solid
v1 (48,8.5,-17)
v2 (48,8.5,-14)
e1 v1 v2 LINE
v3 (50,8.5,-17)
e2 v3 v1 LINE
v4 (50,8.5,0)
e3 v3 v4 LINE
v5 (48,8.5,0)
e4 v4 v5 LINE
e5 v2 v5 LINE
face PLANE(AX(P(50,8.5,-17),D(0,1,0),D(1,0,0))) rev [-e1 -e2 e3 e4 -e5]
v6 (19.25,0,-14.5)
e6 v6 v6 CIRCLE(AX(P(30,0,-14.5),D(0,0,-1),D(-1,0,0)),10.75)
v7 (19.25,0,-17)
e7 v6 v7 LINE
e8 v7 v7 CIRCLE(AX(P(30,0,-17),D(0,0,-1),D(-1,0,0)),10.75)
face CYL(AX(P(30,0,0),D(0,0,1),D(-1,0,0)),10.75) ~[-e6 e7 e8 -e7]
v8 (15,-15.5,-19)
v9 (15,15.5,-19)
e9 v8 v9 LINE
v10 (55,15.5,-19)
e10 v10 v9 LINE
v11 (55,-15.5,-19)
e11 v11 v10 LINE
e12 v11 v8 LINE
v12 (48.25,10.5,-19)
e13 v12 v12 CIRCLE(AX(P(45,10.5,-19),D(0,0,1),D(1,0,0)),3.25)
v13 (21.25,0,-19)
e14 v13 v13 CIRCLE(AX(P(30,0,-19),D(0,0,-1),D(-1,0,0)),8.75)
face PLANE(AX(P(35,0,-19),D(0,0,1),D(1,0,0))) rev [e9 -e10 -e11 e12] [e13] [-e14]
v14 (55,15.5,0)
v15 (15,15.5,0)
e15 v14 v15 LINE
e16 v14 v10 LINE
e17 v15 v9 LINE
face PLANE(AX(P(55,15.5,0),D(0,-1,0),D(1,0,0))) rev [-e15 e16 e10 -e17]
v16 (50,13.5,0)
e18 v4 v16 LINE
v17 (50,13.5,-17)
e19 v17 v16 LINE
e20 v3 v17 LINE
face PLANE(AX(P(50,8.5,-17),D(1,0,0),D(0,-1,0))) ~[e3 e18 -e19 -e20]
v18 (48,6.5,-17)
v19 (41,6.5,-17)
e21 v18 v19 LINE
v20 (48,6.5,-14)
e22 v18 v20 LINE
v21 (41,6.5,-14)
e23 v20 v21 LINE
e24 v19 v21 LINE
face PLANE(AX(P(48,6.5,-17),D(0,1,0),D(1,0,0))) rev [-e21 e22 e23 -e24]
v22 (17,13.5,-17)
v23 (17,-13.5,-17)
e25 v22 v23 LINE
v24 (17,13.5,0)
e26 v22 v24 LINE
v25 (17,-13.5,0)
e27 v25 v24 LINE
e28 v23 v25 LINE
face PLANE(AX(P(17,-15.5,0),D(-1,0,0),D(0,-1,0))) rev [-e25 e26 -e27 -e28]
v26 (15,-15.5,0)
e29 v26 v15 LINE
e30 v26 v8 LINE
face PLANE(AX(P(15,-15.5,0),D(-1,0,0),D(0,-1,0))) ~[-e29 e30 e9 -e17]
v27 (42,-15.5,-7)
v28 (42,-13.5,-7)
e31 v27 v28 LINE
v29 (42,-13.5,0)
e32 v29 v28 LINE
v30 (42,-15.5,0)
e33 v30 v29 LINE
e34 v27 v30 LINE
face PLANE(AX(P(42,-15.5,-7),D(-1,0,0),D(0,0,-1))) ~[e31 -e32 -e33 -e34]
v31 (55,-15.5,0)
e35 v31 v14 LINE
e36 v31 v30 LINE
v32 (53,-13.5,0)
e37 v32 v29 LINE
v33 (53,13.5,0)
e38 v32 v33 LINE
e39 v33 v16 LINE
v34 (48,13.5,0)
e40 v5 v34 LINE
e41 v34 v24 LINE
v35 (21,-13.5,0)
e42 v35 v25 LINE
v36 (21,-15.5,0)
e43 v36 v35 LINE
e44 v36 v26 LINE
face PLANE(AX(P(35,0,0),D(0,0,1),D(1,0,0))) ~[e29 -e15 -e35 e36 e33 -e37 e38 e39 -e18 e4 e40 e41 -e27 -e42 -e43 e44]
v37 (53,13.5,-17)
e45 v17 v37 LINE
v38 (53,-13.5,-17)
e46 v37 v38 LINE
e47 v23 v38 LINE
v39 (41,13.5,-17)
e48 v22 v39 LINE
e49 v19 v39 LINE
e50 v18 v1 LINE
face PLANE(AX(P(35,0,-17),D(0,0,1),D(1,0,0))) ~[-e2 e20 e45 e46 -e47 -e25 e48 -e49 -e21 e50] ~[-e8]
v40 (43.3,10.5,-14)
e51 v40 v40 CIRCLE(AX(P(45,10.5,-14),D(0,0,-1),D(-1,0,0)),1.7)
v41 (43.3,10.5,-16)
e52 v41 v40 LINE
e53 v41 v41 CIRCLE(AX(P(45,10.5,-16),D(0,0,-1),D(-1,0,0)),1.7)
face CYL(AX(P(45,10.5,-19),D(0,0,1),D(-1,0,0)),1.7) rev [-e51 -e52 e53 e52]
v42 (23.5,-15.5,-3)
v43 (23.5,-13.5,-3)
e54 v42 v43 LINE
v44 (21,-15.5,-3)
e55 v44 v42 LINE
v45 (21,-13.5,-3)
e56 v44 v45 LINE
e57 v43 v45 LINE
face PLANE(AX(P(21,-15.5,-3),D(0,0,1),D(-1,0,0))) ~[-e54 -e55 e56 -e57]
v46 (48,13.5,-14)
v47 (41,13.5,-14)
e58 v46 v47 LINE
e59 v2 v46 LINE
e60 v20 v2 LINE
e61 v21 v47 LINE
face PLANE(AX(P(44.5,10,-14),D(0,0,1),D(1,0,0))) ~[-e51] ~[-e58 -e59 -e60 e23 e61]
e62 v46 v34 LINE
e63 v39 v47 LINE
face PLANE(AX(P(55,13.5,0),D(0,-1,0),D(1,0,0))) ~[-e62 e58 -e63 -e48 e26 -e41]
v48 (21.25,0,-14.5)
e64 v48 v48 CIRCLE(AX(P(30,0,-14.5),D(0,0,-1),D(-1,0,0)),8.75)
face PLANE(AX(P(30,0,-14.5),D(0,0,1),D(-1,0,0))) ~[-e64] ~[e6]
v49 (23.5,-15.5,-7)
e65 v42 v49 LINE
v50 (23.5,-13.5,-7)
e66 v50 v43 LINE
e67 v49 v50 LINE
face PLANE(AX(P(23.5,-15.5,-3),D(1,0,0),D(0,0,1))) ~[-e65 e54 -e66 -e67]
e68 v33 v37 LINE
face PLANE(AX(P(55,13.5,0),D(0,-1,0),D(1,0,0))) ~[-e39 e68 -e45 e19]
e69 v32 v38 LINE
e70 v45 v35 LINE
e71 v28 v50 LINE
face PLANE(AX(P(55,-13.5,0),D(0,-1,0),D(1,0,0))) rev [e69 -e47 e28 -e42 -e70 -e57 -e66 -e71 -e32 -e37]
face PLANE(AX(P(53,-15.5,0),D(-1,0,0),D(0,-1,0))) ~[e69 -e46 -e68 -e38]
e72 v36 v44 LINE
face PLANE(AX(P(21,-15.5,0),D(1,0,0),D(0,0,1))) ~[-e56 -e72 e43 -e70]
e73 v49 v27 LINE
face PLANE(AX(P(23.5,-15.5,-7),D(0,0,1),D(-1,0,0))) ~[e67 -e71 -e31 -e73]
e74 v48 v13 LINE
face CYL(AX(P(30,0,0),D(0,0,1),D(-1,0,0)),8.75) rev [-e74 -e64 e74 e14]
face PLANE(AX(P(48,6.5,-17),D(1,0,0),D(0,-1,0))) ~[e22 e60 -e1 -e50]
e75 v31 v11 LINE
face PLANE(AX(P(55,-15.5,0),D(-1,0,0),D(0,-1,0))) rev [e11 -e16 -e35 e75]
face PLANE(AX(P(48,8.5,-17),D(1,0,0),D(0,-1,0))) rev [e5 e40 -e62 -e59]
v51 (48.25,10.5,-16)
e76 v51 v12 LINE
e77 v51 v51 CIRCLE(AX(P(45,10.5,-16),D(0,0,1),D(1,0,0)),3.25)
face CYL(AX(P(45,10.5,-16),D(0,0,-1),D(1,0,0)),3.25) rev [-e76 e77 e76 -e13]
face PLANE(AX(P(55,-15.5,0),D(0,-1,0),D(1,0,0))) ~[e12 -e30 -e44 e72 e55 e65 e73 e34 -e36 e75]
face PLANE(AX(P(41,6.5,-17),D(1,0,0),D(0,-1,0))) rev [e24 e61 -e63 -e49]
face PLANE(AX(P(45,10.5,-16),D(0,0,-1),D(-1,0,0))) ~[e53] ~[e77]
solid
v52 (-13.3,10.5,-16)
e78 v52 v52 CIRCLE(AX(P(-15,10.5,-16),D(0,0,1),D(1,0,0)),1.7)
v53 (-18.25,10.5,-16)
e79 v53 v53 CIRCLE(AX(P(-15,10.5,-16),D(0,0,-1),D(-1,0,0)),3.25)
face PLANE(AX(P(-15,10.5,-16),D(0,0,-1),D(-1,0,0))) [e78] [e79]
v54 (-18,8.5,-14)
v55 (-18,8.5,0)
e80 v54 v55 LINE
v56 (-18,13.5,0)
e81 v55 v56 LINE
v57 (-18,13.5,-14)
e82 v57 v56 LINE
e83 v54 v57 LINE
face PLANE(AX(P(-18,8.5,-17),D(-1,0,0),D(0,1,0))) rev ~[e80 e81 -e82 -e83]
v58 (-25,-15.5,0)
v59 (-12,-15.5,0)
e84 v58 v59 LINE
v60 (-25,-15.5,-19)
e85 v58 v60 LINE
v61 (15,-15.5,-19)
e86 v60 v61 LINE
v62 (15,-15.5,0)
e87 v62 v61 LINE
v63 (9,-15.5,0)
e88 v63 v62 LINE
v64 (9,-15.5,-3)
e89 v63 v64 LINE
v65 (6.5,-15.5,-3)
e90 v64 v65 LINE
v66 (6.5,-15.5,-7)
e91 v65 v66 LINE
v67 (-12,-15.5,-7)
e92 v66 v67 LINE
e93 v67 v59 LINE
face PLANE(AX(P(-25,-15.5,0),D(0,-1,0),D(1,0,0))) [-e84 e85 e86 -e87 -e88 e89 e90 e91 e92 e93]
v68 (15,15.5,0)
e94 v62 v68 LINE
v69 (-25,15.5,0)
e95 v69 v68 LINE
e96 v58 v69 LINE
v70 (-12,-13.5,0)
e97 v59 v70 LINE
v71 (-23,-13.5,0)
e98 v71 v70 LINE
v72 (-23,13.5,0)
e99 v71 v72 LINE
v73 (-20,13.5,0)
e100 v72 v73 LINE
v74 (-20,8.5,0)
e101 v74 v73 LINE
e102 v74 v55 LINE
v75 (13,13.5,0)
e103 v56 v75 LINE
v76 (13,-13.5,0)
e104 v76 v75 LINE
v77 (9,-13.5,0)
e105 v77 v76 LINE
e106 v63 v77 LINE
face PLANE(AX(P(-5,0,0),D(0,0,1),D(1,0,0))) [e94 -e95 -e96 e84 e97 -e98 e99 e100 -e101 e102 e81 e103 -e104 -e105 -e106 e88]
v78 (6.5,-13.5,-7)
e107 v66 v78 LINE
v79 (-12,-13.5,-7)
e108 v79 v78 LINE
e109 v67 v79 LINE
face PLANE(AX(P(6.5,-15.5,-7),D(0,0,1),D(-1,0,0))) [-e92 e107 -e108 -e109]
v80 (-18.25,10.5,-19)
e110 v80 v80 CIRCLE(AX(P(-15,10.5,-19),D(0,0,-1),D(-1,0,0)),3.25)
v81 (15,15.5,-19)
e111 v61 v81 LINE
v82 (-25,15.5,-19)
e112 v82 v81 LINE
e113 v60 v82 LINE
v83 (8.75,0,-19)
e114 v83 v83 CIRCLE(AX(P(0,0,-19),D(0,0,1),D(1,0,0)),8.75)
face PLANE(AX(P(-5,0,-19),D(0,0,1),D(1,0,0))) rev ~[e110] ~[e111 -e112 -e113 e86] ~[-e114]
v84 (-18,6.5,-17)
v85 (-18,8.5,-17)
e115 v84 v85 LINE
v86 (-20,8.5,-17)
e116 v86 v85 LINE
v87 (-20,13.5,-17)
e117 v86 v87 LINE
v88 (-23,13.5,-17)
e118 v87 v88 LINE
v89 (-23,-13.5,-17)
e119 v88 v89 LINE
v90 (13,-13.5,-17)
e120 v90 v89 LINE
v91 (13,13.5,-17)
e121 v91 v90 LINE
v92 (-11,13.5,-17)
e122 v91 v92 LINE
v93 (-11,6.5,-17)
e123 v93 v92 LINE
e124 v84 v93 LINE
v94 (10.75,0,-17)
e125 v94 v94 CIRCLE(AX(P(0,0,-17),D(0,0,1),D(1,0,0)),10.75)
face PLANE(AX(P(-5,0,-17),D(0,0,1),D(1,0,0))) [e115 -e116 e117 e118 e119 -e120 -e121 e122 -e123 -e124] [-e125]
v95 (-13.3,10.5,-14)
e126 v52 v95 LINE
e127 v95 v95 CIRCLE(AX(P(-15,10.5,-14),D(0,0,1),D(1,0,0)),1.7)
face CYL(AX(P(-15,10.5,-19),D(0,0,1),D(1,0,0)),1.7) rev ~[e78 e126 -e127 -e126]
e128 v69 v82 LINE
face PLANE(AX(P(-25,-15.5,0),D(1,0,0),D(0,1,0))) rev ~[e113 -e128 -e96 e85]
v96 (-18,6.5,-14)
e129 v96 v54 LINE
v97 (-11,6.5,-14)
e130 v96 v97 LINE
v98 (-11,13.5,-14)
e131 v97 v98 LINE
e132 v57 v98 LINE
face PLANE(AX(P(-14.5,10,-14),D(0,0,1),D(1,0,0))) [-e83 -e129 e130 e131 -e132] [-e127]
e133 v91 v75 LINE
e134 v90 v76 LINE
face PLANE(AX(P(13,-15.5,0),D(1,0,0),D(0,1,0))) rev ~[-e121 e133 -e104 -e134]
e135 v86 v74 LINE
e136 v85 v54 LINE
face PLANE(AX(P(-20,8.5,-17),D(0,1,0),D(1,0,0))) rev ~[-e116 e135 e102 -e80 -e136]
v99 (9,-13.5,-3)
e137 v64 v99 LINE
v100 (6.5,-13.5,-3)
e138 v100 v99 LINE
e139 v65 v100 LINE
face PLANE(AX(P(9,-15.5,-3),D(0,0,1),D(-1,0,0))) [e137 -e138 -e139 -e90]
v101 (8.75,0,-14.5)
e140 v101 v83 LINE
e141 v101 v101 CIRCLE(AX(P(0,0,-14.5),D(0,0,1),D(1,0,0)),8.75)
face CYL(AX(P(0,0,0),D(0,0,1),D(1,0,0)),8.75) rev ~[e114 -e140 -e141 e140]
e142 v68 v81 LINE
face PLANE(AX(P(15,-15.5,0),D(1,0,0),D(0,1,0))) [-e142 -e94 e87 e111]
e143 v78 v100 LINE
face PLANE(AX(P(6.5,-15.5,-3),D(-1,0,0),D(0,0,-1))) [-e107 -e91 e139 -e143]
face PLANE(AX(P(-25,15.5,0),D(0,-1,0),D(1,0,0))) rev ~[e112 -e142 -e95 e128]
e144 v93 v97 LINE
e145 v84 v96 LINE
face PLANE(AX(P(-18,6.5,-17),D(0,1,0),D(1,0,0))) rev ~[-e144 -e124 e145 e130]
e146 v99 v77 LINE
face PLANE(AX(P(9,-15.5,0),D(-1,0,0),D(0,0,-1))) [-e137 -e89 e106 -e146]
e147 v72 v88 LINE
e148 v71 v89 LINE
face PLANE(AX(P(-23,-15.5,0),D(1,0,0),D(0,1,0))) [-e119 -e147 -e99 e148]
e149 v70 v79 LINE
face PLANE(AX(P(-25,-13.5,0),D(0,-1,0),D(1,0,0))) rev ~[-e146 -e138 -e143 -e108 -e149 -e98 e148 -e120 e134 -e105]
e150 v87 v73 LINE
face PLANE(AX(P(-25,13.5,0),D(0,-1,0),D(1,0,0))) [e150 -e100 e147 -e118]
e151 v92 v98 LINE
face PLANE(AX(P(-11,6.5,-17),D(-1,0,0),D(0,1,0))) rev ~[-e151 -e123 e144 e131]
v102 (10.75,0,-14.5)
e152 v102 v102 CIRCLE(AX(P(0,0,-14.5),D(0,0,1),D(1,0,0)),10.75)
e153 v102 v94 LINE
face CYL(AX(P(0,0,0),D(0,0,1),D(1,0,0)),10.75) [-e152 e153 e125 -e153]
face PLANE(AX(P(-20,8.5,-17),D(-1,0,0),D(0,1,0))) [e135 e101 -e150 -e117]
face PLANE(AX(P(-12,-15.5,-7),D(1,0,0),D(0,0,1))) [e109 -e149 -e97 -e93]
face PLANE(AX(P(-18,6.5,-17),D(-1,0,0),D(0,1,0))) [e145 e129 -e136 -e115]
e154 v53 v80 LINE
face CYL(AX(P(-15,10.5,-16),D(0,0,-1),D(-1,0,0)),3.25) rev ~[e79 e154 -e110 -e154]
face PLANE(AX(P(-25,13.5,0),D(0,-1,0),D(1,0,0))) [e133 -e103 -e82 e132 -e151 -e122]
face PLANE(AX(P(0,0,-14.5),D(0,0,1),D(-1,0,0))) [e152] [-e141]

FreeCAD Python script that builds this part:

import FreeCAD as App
import Part
import Sketcher

V = App.Vector
Q = App.Units.Quantity


def faces_at(feature, points):
    """Names of the faces that lie closest to the given points."""
    faces = feature.Shape.Faces
    near = lambda p: min(range(len(faces)), key=lambda i: faces[i].distToShape(Part.Vertex(*p))[0])
    return sorted({f"Face{near(p) + 1}" for p in points})


def add_polygon(sketch, points):
    """Adds a closed chain of lines whose ends are joined by coincident constraints."""
    first, n = sketch.GeometryCount, len(points)
    for a, b in zip(points, points[1:] + points[:1]):
        sketch.addGeometry(Part.LineSegment(App.Vector(*a, 0), App.Vector(*b, 0)), False)
    for i in range(n):
        sketch.addConstraint(Sketcher.Constraint("Coincident", first + i, 2, first + (i + 1) % n, 1))

doc = App.newDocument("Part")
body = doc.addObject("PartDesign::Body", "Body")

# Sketch on XY plane
sketch1 = doc.addObject("Sketcher::SketchObject", "Sketch")
body.addObject(sketch1)
sketch1.AttachmentSupport = (doc.XY_Plane, [""])
sketch1.MapMode = "FlatFace"
add_polygon(sketch1, [(-25, 16), (-25, -16), (15, -16), (15, 16)])  # lines 0-3
sketch1.addGeometry(Part.Circle(V(0, 0, 0), V(0, 0, 1), 9), False)  # 4
sketch1.addConstraint([
    Sketcher.Constraint("Vertical", 0),
    Sketcher.Constraint("Horizontal", 1),
    Sketcher.Constraint("Vertical", 2),
    Sketcher.Constraint("Horizontal", 3),
    Sketcher.Constraint("Coincident", 4, 3, -1, 1),
    Sketcher.Constraint("Diameter", 4, Q("17.5 mm")),
    Sketcher.Constraint("DistanceX", 1, 1, 1, 2, Q("40 mm")),
    Sketcher.Constraint("DistanceY", 0, 2, 0, 1, Q("31 mm")),
    Sketcher.Constraint("DistanceX", 0, 2, -1, 1, Q("25 mm")),
    Sketcher.Constraint("DistanceY", 0, 2, -1, 1, Q("15.5 mm")),
])
pad1 = doc.addObject("PartDesign::Pad", "Pad")
body.addObject(pad1)
pad1.Profile = sketch1
pad1.Length = 19
pad1.Reversed = True
doc.recompute()

thickness = doc.addObject("PartDesign::Thickness", "Thickness")
body.addObject(thickness)
thickness.Base = (pad1, faces_at(pad1, [(-13, -6.2, 0)]))
thickness.Value = 2
thickness.Reversed = True
thickness.Join = "Intersection"

# Sketch on XY plane
sketch2 = doc.addObject("Sketcher::SketchObject", "Sketch001")
body.addObject(sketch2)
sketch2.AttachmentSupport = (doc.XY_Plane, [""])
sketch2.MapMode = "FlatFace"
sketch2.addGeometry([
    Part.Circle(V(0, 0, 0), V(0, 0, 1), 11),
    Part.Circle(V(0, 0, 0), V(0, 0, 1), 9),
], False)
sketch2.addConstraint([
    Sketcher.Constraint("Coincident", 0, 3, -1, 1),
    Sketcher.Constraint("Coincident", 1, 3, -1, 1),
    Sketcher.Constraint("Diameter", 0, Q("21.5 mm")),
    Sketcher.Constraint("Diameter", 1, Q("17.5 mm")),
])
pocket1 = doc.addObject("PartDesign::Pocket", "Pocket")
body.addObject(pocket1)
pocket1.Profile = sketch2
pocket1.Length = 14.5

# Sketch on XY plane
sketch3 = doc.addObject("Sketcher::SketchObject", "Sketch002")
body.addObject(sketch3)
sketch3.AttachmentSupport = (doc.XY_Plane, [""])
sketch3.MapMode = "FlatFace"
sketch3.AttachmentOffset = App.Placement(V(0, 0, -17), App.Rotation())
add_polygon(sketch3, [(-20, 13.5), (-20, 8.5), (-18, 8.5), (-18, 13.5)])  # lines 0-3
sketch3.addConstraint([
    Sketcher.Constraint("Vertical", 0),
    Sketcher.Constraint("Horizontal", 1),
    Sketcher.Constraint("Vertical", 2),
    Sketcher.Constraint("Horizontal", 3),
    Sketcher.Constraint("DistanceX", 1, 1, 1, 2, Q("2 mm")),
    Sketcher.Constraint("DistanceY", 0, 2, 0, 1, Q("5 mm")),
    Sketcher.Constraint("DistanceX", 0, 2, -1, 1, Q("20 mm")),
    Sketcher.Constraint("DistanceY", -1, 1, 0, 2, Q("8.5 mm")),
])
pad2 = doc.addObject("PartDesign::Pad", "Pad001")
body.addObject(pad2)
pad2.Profile = sketch3
pad2.Length = 17

# Sketch on XY plane
sketch4 = doc.addObject("Sketcher::SketchObject", "Sketch003")
body.addObject(sketch4)
sketch4.AttachmentSupport = (doc.XY_Plane, [""])
sketch4.MapMode = "FlatFace"
sketch4.AttachmentOffset = App.Placement(V(0, 0, -17), App.Rotation())
add_polygon(sketch4, [(-18, 14), (-18, 6), (-11, 6), (-11, 14)])  # lines 0-3
sketch4.addConstraint([
    Sketcher.Constraint("Vertical", 0),
    Sketcher.Constraint("Horizontal", 1),
    Sketcher.Constraint("Vertical", 2),
    Sketcher.Constraint("Horizontal", 3),
    Sketcher.Constraint("Equal", 3, 0),
    Sketcher.Constraint("DistanceX", 1, 1, 1, 2, Q("7 mm")),
    Sketcher.Constraint("DistanceX", 0, 2, -1, 1, Q("18 mm")),
    Sketcher.Constraint("DistanceY", -1, 1, 0, 2, Q("6.5 mm")),
])
pad3 = doc.addObject("PartDesign::Pad", "Pad002")
body.addObject(pad3)
pad3.Profile = sketch4
pad3.Length = 3

# Sketch on XY plane
sketch5 = doc.addObject("Sketcher::SketchObject", "Sketch004")
body.addObject(sketch5)
sketch5.AttachmentSupport = (doc.XY_Plane, [""])
sketch5.MapMode = "FlatFace"
sketch5.AttachmentOffset = App.Placement(V(0, 0, -19), App.Rotation())
sketch5.addGeometry(Part.Circle(V(-15, 10.5, 0), V(0, 0, 1), 1.7), False)
sketch5.addConstraint([
    Sketcher.Constraint("Diameter", 0, Q("3.4 mm")),
    Sketcher.Constraint("DistanceX", 0, 3, -1, 1, Q("15 mm")),
    Sketcher.Constraint("DistanceY", -1, 1, 0, 3, Q("10.5 mm")),
])
doc.recompute()
hole = doc.addObject("PartDesign::Hole", "Hole")
body.addObject(hole)
hole.Profile = sketch5
hole.ThreadType = "None"
hole.Diameter = 3.4
hole.DepthType = "ThroughAll"
hole.HoleCutType = "Counterbore"
hole.HoleCutDiameter = 6.5
hole.HoleCutDepth = 3
hole.Reversed = True

# Sketch on XZ plane
sketch6 = doc.addObject("Sketcher::SketchObject", "Sketch005")
body.addObject(sketch6)
sketch6.AttachmentSupport = (doc.XZ_Plane, [""])
sketch6.MapMode = "FlatFace"
sketch6.AttachmentOffset = App.Placement(V(0, 0, 15.5), App.Rotation())
add_polygon(sketch6, [(9, 0), (-12, 0), (-12, -7), (6.5, -7), (6.5, -3), (9, -3)])  # lines 0-5
sketch6.addConstraint([
    Sketcher.Constraint("Horizontal", 0),
    Sketcher.Constraint("Vertical", 1),
    Sketcher.Constraint("Horizontal", 2),
    Sketcher.Constraint("Vertical", 3),
    Sketcher.Constraint("Horizontal", 4),
    Sketcher.Constraint("Vertical", 5),
    Sketcher.Constraint("PointOnObject", 0, 2, -1),
    Sketcher.Constraint("DistanceX", 0, 2, 0, 1, Q("21 mm")),
    Sketcher.Constraint("DistanceY", 1, 2, 1, 1, Q("7 mm")),
    Sketcher.Constraint("DistanceY", 3, 1, 3, 2, Q("4 mm")),
    Sketcher.Constraint("DistanceX", 2, 1, 2, 2, Q("18.5 mm")),
    Sketcher.Constraint("DistanceX", 0, 2, -1, 1, Q("12 mm")),
])
pocket2 = doc.addObject("PartDesign::Pocket", "Pocket001")
body.addObject(pocket2)
pocket2.Profile = sketch6
pocket2.Type = "UpToFirst"
body2 = doc.addObject("PartDesign::Body", "Body001")
doc.recompute()

mirroring = doc.addObject("Part::Mirroring", "Mirroring")
mirroring.Source = body
mirroring.Base = V(15, -15.5, -19)
mirroring.Normal = V(1, 0, 0)
body2.BaseFeature = mirroring
doc.recompute()
mirroring.Visibility = False

doc.recompute()
